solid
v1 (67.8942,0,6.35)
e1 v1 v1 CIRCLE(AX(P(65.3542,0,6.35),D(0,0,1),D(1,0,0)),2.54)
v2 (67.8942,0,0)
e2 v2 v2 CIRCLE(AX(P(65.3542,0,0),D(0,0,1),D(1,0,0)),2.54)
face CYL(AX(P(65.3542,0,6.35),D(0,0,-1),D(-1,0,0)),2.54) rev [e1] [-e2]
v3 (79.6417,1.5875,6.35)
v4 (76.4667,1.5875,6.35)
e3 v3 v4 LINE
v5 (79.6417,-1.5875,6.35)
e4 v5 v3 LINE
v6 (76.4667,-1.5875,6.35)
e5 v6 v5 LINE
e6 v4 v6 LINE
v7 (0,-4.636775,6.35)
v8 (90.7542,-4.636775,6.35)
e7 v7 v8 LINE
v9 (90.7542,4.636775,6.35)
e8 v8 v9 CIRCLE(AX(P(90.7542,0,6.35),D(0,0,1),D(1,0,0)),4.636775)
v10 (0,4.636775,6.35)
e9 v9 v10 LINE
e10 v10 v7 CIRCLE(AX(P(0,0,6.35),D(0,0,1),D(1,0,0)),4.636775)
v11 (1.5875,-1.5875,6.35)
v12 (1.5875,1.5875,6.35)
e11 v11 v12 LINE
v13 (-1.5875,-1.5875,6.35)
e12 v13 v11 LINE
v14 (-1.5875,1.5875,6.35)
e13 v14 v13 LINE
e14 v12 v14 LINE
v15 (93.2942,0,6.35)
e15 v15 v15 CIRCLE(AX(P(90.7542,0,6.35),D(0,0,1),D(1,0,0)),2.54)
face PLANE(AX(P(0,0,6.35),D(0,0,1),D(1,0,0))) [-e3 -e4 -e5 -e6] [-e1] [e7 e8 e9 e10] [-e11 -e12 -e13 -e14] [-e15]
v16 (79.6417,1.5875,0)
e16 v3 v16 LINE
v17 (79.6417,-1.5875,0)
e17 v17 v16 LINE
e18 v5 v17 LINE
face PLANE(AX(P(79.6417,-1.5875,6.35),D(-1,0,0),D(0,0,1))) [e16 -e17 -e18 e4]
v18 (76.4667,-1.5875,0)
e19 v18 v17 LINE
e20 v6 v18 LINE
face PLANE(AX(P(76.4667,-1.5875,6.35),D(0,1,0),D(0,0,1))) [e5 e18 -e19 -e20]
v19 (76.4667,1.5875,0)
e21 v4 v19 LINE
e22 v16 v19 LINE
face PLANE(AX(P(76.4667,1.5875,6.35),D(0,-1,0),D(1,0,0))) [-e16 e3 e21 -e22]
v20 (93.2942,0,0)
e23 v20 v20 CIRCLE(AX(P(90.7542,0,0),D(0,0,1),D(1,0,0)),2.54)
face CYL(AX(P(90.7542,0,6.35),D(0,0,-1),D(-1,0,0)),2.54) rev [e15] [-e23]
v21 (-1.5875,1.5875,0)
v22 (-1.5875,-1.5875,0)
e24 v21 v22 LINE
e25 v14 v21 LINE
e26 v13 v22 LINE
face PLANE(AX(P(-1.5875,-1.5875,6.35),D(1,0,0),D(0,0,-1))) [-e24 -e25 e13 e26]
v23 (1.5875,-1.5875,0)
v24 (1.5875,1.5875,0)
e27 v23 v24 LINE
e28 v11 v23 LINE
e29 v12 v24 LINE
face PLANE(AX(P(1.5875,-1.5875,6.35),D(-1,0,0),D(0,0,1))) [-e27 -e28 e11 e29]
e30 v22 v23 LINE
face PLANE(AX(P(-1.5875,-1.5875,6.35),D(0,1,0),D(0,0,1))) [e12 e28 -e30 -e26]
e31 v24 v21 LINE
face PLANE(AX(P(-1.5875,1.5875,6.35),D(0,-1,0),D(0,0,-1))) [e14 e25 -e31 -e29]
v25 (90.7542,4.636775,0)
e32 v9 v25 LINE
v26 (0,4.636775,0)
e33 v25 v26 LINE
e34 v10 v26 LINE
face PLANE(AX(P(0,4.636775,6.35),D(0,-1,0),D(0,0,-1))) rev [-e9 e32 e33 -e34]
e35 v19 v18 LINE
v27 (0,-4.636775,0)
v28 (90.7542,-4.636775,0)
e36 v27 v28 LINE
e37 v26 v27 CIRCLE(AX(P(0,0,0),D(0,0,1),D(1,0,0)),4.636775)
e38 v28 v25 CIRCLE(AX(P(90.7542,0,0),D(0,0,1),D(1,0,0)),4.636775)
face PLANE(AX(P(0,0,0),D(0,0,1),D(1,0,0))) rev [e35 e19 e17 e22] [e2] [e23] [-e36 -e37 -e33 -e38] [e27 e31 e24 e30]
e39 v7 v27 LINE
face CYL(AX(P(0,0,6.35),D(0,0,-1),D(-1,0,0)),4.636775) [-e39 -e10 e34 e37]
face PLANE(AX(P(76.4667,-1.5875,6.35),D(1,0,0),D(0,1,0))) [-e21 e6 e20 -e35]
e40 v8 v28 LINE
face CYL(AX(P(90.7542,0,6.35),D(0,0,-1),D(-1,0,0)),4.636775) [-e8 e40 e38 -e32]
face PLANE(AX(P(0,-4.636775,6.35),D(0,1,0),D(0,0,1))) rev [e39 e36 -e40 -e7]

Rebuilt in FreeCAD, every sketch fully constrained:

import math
import FreeCAD as App
import Part
import Sketcher
Q = App.Units.Quantity

doc = App.newDocument("Part")
body = doc.addObject("PartDesign::Body", "Body")

sketch1 = body.newObject("Sketcher::SketchObject", "Sketch")
sketch1.AttachmentSupport = (doc.getObject("XY_Plane"), [""])
sketch1.MapMode = "FlatFace"
sketch1.addGeometry(Part.LineSegment(App.Vector(90.8, 4.6, 0), App.Vector(0, 4.6, 0)), False)
sketch1.addGeometry(Part.ArcOfCircle(Part.Circle(App.Vector(0, 0, 0), App.Vector(0, 0, 1), 4.6), math.radians(90), math.radians(270)), False)
sketch1.addGeometry(Part.LineSegment(App.Vector(0, -4.6, 0), App.Vector(90.8, -4.6, 0)), False)
sketch1.addGeometry(Part.ArcOfCircle(Part.Circle(App.Vector(90.8, 0, 0), App.Vector(0, 0, 1), 4.6), math.radians(-90), math.radians(90)), False)
sketch1.addGeometry(Part.Circle(App.Vector(90.8, 0, 0), App.Vector(0, 0, 1), 2.5), False)
sketch1.addGeometry(Part.LineSegment(App.Vector(76.5, -1.6, 0), App.Vector(76.5, 1.6, 0)), False)
sketch1.addGeometry(Part.LineSegment(App.Vector(76.5, 1.6, 0), App.Vector(79.6, 1.6, 0)), False)
sketch1.addGeometry(Part.LineSegment(App.Vector(79.6, 1.6, 0), App.Vector(79.6, -1.6, 0)), False)
sketch1.addGeometry(Part.LineSegment(App.Vector(79.6, -1.6, 0), App.Vector(76.5, -1.6, 0)), False)
sketch1.addGeometry(Part.Circle(App.Vector(65.4, 0, 0), App.Vector(0, 0, 1), 2.5), False)
sketch1.addGeometry(Part.LineSegment(App.Vector(-1.6, -1.6, 0), App.Vector(-1.6, 1.6, 0)), False)
sketch1.addGeometry(Part.LineSegment(App.Vector(-1.6, 1.6, 0), App.Vector(1.6, 1.6, 0)), False)
sketch1.addGeometry(Part.LineSegment(App.Vector(1.6, 1.6, 0), App.Vector(1.6, -1.6, 0)), False)
sketch1.addGeometry(Part.LineSegment(App.Vector(1.6, -1.6, 0), App.Vector(-1.6, -1.6, 0)), False)
sketch1.addConstraint(Sketcher.Constraint("Tangent", 0, 2, 1, 1))
sketch1.addConstraint(Sketcher.Constraint("Tangent", 1, 2, 2, 1))
sketch1.addConstraint(Sketcher.Constraint("Tangent", 2, 2, 3, 1))
sketch1.addConstraint(Sketcher.Constraint("Tangent", 3, 2, 0, 1))
sketch1.addConstraint(Sketcher.Constraint("Coincident", 5, 2, 6, 1))
sketch1.addConstraint(Sketcher.Constraint("Coincident", 6, 2, 7, 1))
sketch1.addConstraint(Sketcher.Constraint("Coincident", 7, 2, 8, 1))
sketch1.addConstraint(Sketcher.Constraint("Coincident", 8, 2, 5, 1))
sketch1.addConstraint(Sketcher.Constraint("Coincident", 10, 2, 11, 1))
sketch1.addConstraint(Sketcher.Constraint("Coincident", 11, 2, 12, 1))
sketch1.addConstraint(Sketcher.Constraint("Coincident", 12, 2, 13, 1))
sketch1.addConstraint(Sketcher.Constraint("Coincident", 13, 2, 10, 1))
sketch1.addConstraint(Sketcher.Constraint("Horizontal", 0))
sketch1.addConstraint(Sketcher.Constraint("Horizontal", 2))
sketch1.addConstraint(Sketcher.Constraint("Vertical", 5))
sketch1.addConstraint(Sketcher.Constraint("Horizontal", 6))
sketch1.addConstraint(Sketcher.Constraint("Vertical", 7))
sketch1.addConstraint(Sketcher.Constraint("Horizontal", 8))
sketch1.addConstraint(Sketcher.Constraint("Vertical", 10))
sketch1.addConstraint(Sketcher.Constraint("Horizontal", 11))
sketch1.addConstraint(Sketcher.Constraint("Vertical", 12))
sketch1.addConstraint(Sketcher.Constraint("Horizontal", 13))
sketch1.addConstraint(Sketcher.Constraint("Coincident", 1, 3, -1, 1))
sketch1.addConstraint(Sketcher.Constraint("Coincident", 4, 3, 3, 3))
sketch1.addConstraint(Sketcher.Constraint("Equal", 4, 9))
sketch1.addConstraint(Sketcher.Constraint("Symmetric", 10, 2, 12, 2, -1, 1))
sketch1.addConstraint(Sketcher.Constraint("PointOnObject", 9, 3, -1))
sketch1.addConstraint(Sketcher.Constraint("Horizontal", 6, 2, 10, 2))
sketch1.addConstraint(Sketcher.Constraint("Horizontal", 8, 2, 12, 2))
sketch1.addConstraint(Sketcher.Constraint("Equal", 8, 11))
sketch1.addConstraint(Sketcher.Constraint("Equal", 13, 5))
sketch1.addConstraint(Sketcher.Constraint("Diameter", 4, Q("0.2 in")))
sketch1.addConstraint(Sketcher.Constraint("DistanceX", 9, 3, 3, 3, Q("1 in")))
sketch1.addConstraint(Sketcher.Constraint("DistanceX", 0, 2, 0, 1, Q("3.573 in")))
sketch1.addConstraint(Sketcher.Constraint("DistanceX", 6, 1, 6, 2, Q("0.125 in")))
sketch1.addConstraint(Sketcher.Constraint("DistanceX", 9, 3, 5, 2, Q("0.4375 in")))
sketch1.addConstraint(Sketcher.Constraint("Radius", 1, 4.636775))
pad1 = body.newObject("PartDesign::Pad", "Pad")
pad1.Profile = sketch1
pad1.Length = Q("0.25 in")

doc.recompute()
